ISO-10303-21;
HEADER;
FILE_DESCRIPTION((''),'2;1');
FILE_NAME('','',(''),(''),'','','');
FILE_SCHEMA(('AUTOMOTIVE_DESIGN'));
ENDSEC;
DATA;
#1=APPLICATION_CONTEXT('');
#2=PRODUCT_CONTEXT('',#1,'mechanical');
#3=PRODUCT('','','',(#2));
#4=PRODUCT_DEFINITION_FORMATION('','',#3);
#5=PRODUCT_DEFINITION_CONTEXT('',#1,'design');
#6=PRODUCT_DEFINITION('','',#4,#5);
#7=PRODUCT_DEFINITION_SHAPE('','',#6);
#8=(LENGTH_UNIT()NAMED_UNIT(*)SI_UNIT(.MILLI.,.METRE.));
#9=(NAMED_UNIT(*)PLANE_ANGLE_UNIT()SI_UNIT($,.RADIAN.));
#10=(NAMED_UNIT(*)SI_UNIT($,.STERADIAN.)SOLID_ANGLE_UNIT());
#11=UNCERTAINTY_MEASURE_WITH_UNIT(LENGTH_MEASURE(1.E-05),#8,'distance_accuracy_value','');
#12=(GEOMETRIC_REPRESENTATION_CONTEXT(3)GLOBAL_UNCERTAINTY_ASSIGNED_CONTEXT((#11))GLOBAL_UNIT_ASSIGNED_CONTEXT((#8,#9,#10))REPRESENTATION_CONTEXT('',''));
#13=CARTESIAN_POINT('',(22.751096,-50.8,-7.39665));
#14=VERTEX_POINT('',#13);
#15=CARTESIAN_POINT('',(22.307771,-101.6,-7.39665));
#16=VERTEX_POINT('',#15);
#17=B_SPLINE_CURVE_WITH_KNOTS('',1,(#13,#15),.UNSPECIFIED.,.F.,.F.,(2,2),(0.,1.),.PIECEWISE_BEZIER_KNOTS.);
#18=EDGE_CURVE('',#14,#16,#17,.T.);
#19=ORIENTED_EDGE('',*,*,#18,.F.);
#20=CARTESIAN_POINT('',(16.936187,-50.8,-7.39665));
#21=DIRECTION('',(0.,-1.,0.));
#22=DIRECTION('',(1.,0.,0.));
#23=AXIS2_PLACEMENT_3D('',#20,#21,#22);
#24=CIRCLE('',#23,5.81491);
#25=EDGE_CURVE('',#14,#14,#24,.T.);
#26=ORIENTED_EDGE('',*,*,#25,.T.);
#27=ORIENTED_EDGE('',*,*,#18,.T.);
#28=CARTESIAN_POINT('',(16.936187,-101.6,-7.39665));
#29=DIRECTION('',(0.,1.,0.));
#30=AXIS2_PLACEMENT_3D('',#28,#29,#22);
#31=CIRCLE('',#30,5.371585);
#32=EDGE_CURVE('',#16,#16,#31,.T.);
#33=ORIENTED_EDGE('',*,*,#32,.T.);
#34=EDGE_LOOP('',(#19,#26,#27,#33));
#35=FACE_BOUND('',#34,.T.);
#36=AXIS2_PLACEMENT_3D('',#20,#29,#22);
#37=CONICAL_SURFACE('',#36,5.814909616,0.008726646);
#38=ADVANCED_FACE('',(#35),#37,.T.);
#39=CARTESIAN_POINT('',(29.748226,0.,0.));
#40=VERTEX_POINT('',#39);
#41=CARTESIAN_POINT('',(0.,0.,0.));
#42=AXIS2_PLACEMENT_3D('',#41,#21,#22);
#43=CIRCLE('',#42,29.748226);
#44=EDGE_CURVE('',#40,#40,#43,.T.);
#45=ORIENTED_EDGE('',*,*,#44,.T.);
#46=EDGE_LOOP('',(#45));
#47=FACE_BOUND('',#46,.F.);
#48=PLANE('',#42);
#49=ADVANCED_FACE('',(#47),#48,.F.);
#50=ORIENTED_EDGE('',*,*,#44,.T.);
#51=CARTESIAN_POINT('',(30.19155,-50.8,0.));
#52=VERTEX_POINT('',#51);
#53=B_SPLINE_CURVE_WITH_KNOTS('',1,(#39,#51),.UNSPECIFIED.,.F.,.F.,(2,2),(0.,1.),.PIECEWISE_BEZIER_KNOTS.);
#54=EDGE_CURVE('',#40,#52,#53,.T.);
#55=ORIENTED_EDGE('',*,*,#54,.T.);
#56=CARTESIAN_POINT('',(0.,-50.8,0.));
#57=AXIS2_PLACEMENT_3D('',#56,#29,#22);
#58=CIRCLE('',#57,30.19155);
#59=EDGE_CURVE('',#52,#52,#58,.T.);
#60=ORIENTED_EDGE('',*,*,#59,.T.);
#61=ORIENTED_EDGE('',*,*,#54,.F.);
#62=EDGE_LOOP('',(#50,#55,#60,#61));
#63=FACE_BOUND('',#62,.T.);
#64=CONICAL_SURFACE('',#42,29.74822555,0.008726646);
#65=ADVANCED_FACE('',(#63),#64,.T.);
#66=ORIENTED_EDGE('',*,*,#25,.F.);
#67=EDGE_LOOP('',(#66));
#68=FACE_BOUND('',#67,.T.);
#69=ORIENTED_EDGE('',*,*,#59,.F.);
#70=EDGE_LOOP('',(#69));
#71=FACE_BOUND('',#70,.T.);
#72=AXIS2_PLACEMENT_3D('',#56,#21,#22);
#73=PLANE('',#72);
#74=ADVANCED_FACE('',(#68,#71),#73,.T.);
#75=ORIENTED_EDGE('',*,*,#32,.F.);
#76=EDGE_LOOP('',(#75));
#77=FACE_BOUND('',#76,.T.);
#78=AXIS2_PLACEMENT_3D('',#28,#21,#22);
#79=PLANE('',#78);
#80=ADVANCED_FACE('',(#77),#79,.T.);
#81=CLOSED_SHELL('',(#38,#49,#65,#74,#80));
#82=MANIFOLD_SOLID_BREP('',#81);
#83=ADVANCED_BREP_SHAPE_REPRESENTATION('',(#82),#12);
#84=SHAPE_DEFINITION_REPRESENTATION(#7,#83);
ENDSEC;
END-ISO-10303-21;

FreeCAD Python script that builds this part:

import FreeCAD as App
import Part
import Sketcher

V = App.Vector

doc = App.newDocument("Part")
params = doc.addObject("Spreadsheet::Sheet", "Params")
for row, (alias, value) in enumerate([
    ("pad1_length", "2 in"),
    ("pad1_taper", "0.5 deg"),
    ("pad2_length", "2 in"),
    ("pad2_taper", "-0.5 deg"),
], start=1):
    params.set(f"A{row}", alias)
    params.set(f"B{row}", "=" + value)
    params.setAlias(f"B{row}", alias)

body = doc.addObject("PartDesign::Body", "Body")

sketch1 = body.newObject("Sketcher::SketchObject", "Sketch")
sketch1.AttachmentSupport = (doc.getObject("XZ_Plane"), [""])
sketch1.MapMode = "FlatFace"
sketch1.addGeometry(Part.Circle(V(0, 0, 0), V(0, 0, 1), 30), False)
sketch1.addConstraint([
    Sketcher.Constraint("Coincident", 0, 3, -1, 1),
    Sketcher.Constraint("Diameter", 0, 59.496451),
])
pad1 = body.newObject("PartDesign::Pad", "Pad")
pad1.Profile = sketch1
pad1.setExpression("Length", "Params.pad1_length")
pad1.setExpression("TaperAngle", "Params.pad1_taper")

sketch2 = body.newObject("Sketcher::SketchObject", "Sketch001")
sketch2.AttachmentSupport = (doc.getObject("XZ_Plane"), [""])
sketch2.MapMode = "FlatFace"
sketch2.AttachmentOffset = App.Placement(V(0, 0, 2 * 25.4), App.Rotation())
sketch2.addGeometry(Part.Circle(V(17, -7, 0), V(0, 0, 1), 6), False)
sketch2.addConstraint([
    Sketcher.Constraint("Diameter", 0, 11.629819),
    Sketcher.Constraint("DistanceY", 0, 3, -1, 1, 7.39665),
    Sketcher.Constraint("DistanceX", -1, 1, 0, 3, 16.936187),
])
pad2 = body.newObject("PartDesign::Pad", "Pad001")
pad2.Profile = sketch2
pad2.setExpression("Length", "Params.pad2_length")
pad2.setExpression("TaperAngle", "Params.pad2_taper")

doc.recompute()
